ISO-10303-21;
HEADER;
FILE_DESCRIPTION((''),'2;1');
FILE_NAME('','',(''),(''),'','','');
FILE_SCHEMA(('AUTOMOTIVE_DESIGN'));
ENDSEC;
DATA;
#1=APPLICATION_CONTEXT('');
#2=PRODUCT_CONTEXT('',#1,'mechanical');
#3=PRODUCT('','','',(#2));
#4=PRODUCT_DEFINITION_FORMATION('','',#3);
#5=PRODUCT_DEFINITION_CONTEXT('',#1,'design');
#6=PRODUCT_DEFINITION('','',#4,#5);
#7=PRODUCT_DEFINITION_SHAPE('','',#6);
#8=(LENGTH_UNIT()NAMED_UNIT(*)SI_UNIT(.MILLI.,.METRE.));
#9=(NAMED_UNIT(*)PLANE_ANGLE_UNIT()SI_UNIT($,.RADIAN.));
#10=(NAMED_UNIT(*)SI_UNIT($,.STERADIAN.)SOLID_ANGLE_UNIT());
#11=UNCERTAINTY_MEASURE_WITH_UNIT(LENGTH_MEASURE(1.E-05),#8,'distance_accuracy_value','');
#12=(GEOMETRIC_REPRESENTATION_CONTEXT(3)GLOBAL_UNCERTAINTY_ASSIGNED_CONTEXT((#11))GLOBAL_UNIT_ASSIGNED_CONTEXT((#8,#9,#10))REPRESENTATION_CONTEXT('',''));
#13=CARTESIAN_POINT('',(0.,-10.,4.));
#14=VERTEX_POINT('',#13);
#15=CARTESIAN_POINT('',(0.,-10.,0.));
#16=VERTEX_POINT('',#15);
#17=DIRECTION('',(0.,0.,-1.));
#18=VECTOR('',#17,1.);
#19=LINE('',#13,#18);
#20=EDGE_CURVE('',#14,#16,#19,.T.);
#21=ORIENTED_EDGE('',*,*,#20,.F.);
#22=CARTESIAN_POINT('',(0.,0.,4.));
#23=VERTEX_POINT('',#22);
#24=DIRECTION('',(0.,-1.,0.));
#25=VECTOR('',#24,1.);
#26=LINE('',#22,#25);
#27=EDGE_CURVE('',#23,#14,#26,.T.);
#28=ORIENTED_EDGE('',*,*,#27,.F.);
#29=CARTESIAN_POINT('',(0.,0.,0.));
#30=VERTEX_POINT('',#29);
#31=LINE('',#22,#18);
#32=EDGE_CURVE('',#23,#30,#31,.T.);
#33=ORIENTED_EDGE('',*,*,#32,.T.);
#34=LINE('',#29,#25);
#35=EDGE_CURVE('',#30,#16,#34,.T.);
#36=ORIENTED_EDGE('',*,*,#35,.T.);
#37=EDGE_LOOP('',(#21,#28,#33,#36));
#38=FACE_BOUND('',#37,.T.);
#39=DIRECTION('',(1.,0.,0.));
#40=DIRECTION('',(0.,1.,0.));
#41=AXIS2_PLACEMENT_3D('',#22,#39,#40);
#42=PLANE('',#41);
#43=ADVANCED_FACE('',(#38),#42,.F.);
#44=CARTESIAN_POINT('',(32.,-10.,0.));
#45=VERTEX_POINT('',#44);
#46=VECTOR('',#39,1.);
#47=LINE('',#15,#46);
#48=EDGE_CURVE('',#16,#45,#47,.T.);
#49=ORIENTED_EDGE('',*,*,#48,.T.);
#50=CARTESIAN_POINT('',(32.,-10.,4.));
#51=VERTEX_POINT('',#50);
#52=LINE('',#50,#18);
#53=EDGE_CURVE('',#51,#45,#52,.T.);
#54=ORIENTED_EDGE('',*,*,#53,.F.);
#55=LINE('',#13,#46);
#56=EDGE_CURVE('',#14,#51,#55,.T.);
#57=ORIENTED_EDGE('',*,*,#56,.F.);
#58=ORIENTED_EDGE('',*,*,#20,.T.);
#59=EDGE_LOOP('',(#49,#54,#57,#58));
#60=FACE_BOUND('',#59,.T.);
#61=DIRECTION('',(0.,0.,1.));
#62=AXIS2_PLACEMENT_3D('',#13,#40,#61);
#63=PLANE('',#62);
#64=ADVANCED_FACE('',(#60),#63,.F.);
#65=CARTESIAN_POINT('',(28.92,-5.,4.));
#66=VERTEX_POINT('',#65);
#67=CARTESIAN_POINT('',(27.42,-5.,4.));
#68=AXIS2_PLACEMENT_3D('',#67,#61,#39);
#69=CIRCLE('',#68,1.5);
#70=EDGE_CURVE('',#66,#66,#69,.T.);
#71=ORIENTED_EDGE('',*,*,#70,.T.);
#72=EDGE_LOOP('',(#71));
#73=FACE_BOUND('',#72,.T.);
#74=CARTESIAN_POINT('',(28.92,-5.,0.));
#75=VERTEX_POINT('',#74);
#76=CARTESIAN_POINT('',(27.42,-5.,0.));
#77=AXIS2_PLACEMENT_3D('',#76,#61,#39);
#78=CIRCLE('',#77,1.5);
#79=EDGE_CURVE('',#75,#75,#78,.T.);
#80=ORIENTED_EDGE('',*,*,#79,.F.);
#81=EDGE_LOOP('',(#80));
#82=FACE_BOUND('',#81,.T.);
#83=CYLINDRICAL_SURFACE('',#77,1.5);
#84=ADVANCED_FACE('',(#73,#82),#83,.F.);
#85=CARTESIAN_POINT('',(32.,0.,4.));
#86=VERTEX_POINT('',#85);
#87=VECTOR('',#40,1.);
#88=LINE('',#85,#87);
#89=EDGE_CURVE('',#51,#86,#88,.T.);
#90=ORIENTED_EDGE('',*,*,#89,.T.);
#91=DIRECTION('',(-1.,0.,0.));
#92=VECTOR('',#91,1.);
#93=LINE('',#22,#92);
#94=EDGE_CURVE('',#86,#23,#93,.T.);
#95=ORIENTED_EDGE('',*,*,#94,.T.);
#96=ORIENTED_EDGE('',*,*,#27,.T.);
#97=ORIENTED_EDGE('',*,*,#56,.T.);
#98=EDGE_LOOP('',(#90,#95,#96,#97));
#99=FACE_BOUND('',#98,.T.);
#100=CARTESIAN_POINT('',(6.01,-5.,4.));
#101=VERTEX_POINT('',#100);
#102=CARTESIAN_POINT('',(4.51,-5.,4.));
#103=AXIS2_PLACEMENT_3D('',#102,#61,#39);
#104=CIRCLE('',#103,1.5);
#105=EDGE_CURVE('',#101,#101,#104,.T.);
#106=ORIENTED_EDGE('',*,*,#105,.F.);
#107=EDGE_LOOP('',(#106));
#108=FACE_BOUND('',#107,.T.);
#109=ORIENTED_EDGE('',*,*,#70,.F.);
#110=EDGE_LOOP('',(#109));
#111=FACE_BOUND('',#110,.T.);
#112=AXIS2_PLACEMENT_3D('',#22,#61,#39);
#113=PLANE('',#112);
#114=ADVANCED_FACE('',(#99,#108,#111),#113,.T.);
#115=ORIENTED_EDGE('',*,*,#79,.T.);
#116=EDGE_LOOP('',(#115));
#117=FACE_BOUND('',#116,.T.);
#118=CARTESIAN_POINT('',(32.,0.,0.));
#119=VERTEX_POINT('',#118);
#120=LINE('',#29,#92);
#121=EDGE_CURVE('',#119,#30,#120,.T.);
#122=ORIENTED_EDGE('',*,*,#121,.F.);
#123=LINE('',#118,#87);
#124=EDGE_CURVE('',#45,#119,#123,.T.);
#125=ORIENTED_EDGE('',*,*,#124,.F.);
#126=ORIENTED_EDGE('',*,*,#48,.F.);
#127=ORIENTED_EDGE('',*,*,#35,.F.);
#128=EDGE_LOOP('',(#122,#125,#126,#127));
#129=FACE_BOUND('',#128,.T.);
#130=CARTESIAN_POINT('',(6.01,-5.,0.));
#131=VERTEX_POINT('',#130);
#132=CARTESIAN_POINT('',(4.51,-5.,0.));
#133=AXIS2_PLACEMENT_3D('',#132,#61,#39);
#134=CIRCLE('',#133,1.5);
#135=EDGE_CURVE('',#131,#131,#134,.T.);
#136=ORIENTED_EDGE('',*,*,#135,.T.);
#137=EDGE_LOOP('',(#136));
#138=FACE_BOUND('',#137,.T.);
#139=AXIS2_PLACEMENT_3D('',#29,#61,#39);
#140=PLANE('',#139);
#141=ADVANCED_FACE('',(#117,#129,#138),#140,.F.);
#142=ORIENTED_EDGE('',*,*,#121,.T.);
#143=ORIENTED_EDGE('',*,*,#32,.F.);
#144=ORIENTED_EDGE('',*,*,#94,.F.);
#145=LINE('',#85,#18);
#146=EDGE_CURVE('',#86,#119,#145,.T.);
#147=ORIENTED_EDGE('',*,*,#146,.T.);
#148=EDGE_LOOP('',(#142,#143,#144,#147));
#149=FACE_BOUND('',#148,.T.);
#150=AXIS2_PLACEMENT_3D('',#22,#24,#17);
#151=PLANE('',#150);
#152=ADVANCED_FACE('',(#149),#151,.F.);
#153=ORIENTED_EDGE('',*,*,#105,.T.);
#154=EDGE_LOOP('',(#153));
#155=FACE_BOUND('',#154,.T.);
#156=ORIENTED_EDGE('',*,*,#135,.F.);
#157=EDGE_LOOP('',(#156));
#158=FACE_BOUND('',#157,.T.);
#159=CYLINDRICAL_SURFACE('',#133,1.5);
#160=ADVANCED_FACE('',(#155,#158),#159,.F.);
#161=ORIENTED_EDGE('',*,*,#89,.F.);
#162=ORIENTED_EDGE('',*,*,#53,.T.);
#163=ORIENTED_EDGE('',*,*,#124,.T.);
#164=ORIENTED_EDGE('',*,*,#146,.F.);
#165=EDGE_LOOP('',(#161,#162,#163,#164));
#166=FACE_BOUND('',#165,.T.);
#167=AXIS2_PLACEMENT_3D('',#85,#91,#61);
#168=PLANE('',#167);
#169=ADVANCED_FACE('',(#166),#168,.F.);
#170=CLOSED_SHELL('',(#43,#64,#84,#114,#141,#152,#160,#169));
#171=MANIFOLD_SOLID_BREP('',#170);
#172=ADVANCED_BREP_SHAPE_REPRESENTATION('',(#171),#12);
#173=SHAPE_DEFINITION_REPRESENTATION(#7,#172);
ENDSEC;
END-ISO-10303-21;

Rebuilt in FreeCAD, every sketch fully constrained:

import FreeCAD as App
import Part
import Sketcher

doc = App.newDocument("Part")
params = doc.addObject("Spreadsheet::Sheet", "Params")
for row, (alias, value) in enumerate([
    ("sketch1_width", "32 mm"),
    ("sketch1_height", "10 mm"),
    ("pad1_length", "4 mm"),
    ("sketch2_diameter", "3 mm"),
    ("pocket1_length", "4 mm"),
], start=1):
    params.set(f"A{row}", alias)
    params.set(f"B{row}", "=" + value)
    params.setAlias(f"B{row}", alias)

body = doc.addObject("PartDesign::Body", "Body")

# Sketch on XY plane
sketch1 = body.newObject("Sketcher::SketchObject", "Sketch")
sketch1.AttachmentSupport = (doc.getObject("XY_Plane"), [""])
sketch1.MapMode = "FlatFace"
sketch1.addGeometry([
    Part.LineSegment(App.Vector(0, 0, 0), App.Vector(0, -10, 0)),
    Part.LineSegment(App.Vector(0, -10, 0), App.Vector(32, -10, 0)),
    Part.LineSegment(App.Vector(32, -10, 0), App.Vector(32, 0, 0)),
    Part.LineSegment(App.Vector(32, 0, 0), App.Vector(0, 0, 0)),
], False)
sketch1.addConstraint([
    Sketcher.Constraint("Coincident", 0, 2, 1, 1),
    Sketcher.Constraint("Coincident", 1, 2, 2, 1),
    Sketcher.Constraint("Coincident", 2, 2, 3, 1),
    Sketcher.Constraint("Coincident", 3, 2, 0, 1),
    Sketcher.Constraint("Vertical", 0),
    Sketcher.Constraint("Horizontal", 1),
    Sketcher.Constraint("Vertical", 2),
    Sketcher.Constraint("Horizontal", 3),
    Sketcher.Constraint("Coincident", 3, 2, -1, 1),
    Sketcher.Constraint("DistanceX", 1, 1, 1, 2, 32.0),
    Sketcher.Constraint("DistanceY", 0, 2, 0, 1, 10.0),
])
sketch1.setExpression("Constraints[9]", "Params.sketch1_width")
sketch1.setExpression("Constraints[10]", "Params.sketch1_height")
pad1 = body.newObject("PartDesign::Pad", "Pad")
pad1.Profile = sketch1
pad1.setExpression("Length", "Params.pad1_length")

# Sketch on XY plane
sketch2 = body.newObject("Sketcher::SketchObject", "Sketch001")
sketch2.AttachmentSupport = (doc.getObject("XY_Plane"), [""])
sketch2.MapMode = "FlatFace"
sketch2.AttachmentOffset = App.Placement(App.Vector(0, 0, 4), App.Rotation())
sketch2.addGeometry([
    Part.Circle(App.Vector(4.5, -5, 0), App.Vector(0, 0, 1), 1.5),
    Part.Circle(App.Vector(27.4, -5, 0), App.Vector(0, 0, 1), 1.5),
], False)
sketch2.addConstraint([
    Sketcher.Constraint("Equal", 0, 1),
    Sketcher.Constraint("Horizontal", 0, 3, 1, 3),
    Sketcher.Constraint("Diameter", 0, 3.0),
    Sketcher.Constraint("DistanceY", 0, 3, -1, 1, 5.0),
    Sketcher.Constraint("DistanceX", -1, 1, 0, 3, 4.51),
    Sketcher.Constraint("DistanceX", -1, 1, 1, 3, 27.42),
])
sketch2.setExpression("Constraints[2]", "Params.sketch2_diameter")
pocket1 = body.newObject("PartDesign::Pocket", "Pocket")
pocket1.Profile = sketch2
pocket1.setExpression("Length", "Params.pocket1_length")

doc.recompute()
